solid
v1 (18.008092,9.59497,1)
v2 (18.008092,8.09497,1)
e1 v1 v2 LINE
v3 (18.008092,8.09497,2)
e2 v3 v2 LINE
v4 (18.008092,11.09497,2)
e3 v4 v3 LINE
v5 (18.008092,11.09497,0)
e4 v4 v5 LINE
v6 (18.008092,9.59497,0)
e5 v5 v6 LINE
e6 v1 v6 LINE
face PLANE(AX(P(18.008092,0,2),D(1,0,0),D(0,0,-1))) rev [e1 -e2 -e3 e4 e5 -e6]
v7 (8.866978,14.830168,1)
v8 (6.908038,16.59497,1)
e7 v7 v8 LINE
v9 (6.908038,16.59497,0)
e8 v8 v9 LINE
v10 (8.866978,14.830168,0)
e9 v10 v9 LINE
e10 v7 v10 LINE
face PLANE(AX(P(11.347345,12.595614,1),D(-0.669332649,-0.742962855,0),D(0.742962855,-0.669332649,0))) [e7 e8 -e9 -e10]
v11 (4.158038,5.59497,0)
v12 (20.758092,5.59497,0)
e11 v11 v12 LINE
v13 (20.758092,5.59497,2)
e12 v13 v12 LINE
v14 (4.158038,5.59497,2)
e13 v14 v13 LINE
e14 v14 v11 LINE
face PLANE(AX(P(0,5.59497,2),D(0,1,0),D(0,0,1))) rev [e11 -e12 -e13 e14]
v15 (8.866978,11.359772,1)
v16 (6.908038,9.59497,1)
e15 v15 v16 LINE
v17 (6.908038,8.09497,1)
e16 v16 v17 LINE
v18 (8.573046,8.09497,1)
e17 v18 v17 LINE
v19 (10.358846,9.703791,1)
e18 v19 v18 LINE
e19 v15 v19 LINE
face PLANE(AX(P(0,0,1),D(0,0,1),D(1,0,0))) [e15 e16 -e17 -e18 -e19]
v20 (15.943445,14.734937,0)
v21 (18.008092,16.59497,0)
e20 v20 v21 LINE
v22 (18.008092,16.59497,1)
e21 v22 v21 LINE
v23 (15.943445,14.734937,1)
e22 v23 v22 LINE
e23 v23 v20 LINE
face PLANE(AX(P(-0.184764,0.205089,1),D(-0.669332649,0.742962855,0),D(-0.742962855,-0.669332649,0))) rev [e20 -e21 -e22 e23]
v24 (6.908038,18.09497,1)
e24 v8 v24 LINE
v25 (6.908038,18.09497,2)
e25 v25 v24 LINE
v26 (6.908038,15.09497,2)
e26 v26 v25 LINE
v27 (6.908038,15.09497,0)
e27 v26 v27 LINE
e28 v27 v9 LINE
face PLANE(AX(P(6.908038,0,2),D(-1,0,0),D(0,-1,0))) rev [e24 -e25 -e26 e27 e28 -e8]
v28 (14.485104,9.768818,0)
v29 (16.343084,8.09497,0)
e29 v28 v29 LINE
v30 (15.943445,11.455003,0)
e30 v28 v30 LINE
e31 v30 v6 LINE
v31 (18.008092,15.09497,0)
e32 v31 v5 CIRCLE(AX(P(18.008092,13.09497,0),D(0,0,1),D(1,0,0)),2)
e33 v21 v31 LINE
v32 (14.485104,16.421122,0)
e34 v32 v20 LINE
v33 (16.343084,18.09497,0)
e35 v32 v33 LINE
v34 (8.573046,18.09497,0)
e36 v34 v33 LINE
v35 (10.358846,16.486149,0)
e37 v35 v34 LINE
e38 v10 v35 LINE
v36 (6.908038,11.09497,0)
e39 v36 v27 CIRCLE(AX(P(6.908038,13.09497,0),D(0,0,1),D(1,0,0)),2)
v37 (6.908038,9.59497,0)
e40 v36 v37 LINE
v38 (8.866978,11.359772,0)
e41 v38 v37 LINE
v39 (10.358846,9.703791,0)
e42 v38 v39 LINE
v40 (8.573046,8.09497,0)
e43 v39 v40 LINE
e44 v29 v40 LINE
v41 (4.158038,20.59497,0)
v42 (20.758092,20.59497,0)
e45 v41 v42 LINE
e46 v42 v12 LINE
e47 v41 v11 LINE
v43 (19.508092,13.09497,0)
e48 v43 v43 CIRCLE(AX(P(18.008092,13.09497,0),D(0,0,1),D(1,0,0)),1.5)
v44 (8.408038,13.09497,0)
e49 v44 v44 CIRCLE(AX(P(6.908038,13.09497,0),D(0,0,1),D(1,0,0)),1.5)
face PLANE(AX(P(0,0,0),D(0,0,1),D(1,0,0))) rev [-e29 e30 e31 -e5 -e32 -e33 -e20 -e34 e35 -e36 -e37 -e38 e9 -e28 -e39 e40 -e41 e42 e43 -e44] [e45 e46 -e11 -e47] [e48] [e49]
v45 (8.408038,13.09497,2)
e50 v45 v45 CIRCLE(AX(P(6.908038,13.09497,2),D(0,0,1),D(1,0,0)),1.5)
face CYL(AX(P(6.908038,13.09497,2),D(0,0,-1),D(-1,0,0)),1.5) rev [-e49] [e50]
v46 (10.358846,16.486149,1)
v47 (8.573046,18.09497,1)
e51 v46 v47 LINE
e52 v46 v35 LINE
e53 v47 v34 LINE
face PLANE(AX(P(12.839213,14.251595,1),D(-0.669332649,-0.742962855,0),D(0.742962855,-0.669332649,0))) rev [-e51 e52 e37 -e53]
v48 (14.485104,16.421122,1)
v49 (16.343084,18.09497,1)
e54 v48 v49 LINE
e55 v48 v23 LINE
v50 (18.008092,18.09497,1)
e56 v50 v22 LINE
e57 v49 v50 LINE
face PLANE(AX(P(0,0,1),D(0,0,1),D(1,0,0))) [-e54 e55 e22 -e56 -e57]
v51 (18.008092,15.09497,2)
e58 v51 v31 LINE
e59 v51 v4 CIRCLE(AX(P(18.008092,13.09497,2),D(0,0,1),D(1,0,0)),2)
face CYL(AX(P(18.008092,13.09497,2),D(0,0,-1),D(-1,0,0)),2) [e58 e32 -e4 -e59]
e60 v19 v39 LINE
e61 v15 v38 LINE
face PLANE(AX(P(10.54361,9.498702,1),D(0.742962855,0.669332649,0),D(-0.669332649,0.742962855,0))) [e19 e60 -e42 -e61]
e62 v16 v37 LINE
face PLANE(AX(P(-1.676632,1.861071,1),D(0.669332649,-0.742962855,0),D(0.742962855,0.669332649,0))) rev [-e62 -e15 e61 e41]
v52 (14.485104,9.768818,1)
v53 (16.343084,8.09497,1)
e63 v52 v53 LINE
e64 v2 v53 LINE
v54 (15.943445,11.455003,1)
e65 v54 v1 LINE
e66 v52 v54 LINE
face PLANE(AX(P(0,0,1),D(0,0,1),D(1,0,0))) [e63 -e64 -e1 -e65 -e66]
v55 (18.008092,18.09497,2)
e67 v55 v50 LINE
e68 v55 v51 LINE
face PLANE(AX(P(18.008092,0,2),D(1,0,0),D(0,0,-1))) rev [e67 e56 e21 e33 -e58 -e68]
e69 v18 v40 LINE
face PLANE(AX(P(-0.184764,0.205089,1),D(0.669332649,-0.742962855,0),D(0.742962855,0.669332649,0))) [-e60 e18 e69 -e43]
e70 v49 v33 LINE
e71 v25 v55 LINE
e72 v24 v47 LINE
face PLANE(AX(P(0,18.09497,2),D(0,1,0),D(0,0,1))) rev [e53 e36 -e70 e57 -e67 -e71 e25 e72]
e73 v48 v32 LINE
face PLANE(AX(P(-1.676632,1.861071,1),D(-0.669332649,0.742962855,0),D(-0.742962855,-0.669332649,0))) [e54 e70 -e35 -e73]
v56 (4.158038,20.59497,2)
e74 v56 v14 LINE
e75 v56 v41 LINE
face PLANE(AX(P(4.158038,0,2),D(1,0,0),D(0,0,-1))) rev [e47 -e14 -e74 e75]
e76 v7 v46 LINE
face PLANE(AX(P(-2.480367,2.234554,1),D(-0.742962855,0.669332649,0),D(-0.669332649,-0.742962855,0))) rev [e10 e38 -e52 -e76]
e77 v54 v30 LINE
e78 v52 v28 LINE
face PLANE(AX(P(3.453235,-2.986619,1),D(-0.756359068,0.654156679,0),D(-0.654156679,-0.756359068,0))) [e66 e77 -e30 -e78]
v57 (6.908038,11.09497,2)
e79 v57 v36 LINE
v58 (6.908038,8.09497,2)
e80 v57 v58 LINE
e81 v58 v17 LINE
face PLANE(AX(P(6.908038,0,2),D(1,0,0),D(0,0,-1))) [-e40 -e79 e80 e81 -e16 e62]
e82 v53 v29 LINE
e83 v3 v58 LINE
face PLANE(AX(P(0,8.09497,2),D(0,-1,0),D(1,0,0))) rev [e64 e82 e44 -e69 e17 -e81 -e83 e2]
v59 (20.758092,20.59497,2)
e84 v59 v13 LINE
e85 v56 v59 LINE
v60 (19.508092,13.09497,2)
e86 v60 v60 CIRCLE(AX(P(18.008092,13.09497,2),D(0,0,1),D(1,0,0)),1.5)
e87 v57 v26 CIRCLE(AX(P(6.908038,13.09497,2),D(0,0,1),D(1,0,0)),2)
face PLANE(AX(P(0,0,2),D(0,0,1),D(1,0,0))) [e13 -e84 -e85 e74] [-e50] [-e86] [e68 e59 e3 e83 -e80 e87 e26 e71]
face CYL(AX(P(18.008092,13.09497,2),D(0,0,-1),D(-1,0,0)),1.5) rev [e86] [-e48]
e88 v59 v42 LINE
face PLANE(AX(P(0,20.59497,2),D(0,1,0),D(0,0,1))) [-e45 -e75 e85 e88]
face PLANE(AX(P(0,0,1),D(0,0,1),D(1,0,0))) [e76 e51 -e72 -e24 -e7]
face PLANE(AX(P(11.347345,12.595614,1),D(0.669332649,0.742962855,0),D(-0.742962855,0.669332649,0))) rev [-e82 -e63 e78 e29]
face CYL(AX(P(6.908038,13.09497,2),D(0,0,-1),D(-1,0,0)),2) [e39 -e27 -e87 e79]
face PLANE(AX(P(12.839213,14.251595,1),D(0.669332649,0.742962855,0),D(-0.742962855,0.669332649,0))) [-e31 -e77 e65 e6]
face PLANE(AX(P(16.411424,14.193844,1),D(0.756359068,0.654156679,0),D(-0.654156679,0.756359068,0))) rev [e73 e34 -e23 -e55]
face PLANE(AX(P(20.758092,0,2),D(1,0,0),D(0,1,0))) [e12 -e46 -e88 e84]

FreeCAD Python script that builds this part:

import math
import FreeCAD as App
import Part
import Sketcher

doc = App.newDocument("Part")
body = doc.addObject("PartDesign::Body", "Body")

# Sketch on XY plane
sketch1 = doc.addObject("Sketcher::SketchObject", "Sketch")
body.addObject(sketch1)
sketch1.AttachmentSupport = (doc.XY_Plane, [""])
sketch1.MapMode = "FlatFace"
sketch1.addGeometry([
    Part.LineSegment(App.Vector(4.2, 20.6, 0), App.Vector(4.2, 5.6, 0)),  # 0
    Part.LineSegment(App.Vector(4.2, 5.6, 0), App.Vector(20.8, 5.6, 0)),  # 1
    Part.LineSegment(App.Vector(20.8, 5.6, 0), App.Vector(20.8, 20.6, 0)),  # 2
    Part.LineSegment(App.Vector(20.8, 20.6, 0), App.Vector(4.2, 20.6, 0)),  # 3
    Part.Circle(App.Vector(6.9, 13.1, 0), App.Vector(0, 0, 1), 1.5),  # 4
    Part.LineSegment(App.Vector(6.9, 8.1, 0), App.Vector(6.9, 11.1, 0)),  # 5
    Part.ArcOfCircle(Part.Circle(App.Vector(6.9, 13.1, 0), App.Vector(0, 0, 1), 2), math.radians(-90), math.radians(90)),  # 6
    Part.LineSegment(App.Vector(6.9, 15.1, 0), App.Vector(6.9, 18.1, 0)),  # 7
    Part.LineSegment(App.Vector(6.9, 18.1, 0), App.Vector(18, 18.1, 0)),  # 8
    Part.LineSegment(App.Vector(18, 18.1, 0), App.Vector(18, 15.1, 0)),  # 9
    Part.ArcOfCircle(Part.Circle(App.Vector(18, 13.1, 0), App.Vector(0, 0, 1), 2), math.radians(90), math.radians(270)),  # 10
    Part.LineSegment(App.Vector(18, 11.1, 0), App.Vector(18, 8.1, 0)),  # 11
    Part.LineSegment(App.Vector(18, 8.1, 0), App.Vector(6.9, 8.1, 0)),  # 12
    Part.Circle(App.Vector(18, 13.1, 0), App.Vector(0, 0, 1), 1.5),  # 13
], False)
sketch1.addConstraint([
    Sketcher.Constraint("Coincident", 0, 2, 1, 1),
    Sketcher.Constraint("Coincident", 1, 2, 2, 1),
    Sketcher.Constraint("Coincident", 2, 2, 3, 1),
    Sketcher.Constraint("Coincident", 3, 2, 0, 1),
    Sketcher.Constraint("Coincident", 5, 2, 6, 1),
    Sketcher.Constraint("Coincident", 6, 2, 7, 1),
    Sketcher.Constraint("Coincident", 7, 2, 8, 1),
    Sketcher.Constraint("Coincident", 8, 2, 9, 1),
    Sketcher.Constraint("Coincident", 9, 2, 10, 1),
    Sketcher.Constraint("Coincident", 10, 2, 11, 1),
    Sketcher.Constraint("Coincident", 11, 2, 12, 1),
    Sketcher.Constraint("Coincident", 12, 2, 5, 1),
    Sketcher.Constraint("Vertical", 0),
    Sketcher.Constraint("Horizontal", 1),
    Sketcher.Constraint("Vertical", 2),
    Sketcher.Constraint("Horizontal", 3),
    Sketcher.Constraint("Vertical", 5),
    Sketcher.Constraint("Vertical", 7),
    Sketcher.Constraint("Horizontal", 8),
    Sketcher.Constraint("Vertical", 9),
    Sketcher.Constraint("Vertical", 11),
    Sketcher.Constraint("Horizontal", 12),
    Sketcher.Constraint("Coincident", 6, 3, 4, 3),
    Sketcher.Constraint("Coincident", 13, 3, 10, 3),
    Sketcher.Constraint("Equal", 6, 10),
    Sketcher.Constraint("Equal", 4, 13),
    Sketcher.Constraint("Horizontal", 6, 3, 10, 3),
    Sketcher.Constraint("Vertical", 6, 3, 5, 2),
    Sketcher.Constraint("Vertical", 5, 2, 6, 2),
    Sketcher.Constraint("Vertical", 13, 3, 8, 2),
    Sketcher.Constraint("Vertical", 9, 2, 10, 2),
    Sketcher.Constraint("Equal", 5, 7),
    Sketcher.Constraint("Diameter", 4, 3.0),
    Sketcher.Constraint("Radius", 6, 2.0),
    Sketcher.Constraint("DistanceY", 0, 2, 0, 1, 15.0),
    Sketcher.Constraint("DistanceY", 5, 1, 5, 2, 3.0),
    Sketcher.Constraint("DistanceY", 0, 2, 4, 3, 7.5),
    Sketcher.Constraint("DistanceX", 0, 2, 4, 3, 2.75),
    Sketcher.Constraint("DistanceX", 10, 3, 1, 2, 2.75),
    Sketcher.Constraint("DistanceX", 1, 1, 1, 2, 16.600054),
    Sketcher.Constraint("DistanceX", -1, 1, 4, 3, 6.908038),
    Sketcher.Constraint("DistanceY", -1, 1, 4, 3, 13.09497),
])
pad1 = doc.addObject("PartDesign::Pad", "Pad")
body.addObject(pad1)
pad1.Profile = sketch1
pad1.Length = 2

# Sketch on XY plane
sketch2 = doc.addObject("Sketcher::SketchObject", "Sketch001")
body.addObject(sketch2)
sketch2.AttachmentSupport = (doc.XY_Plane, [""])
sketch2.MapMode = "FlatFace"
sketch2.addGeometry([
    Part.LineSegment(App.Vector(6.908038, 18.09497, 0), App.Vector(6.908038, 16.59497, 0)),  # 0
    Part.LineSegment(App.Vector(6.908038, 16.59497, 0), App.Vector(8.866978, 14.830168, 0)),  # 1
    Part.LineSegment(App.Vector(8.866978, 14.830168, 0), App.Vector(10.358846, 16.486149, 0)),  # 2
    Part.LineSegment(App.Vector(10.358846, 16.486149, 0), App.Vector(8.573046, 18.09497, 0)),  # 3
    Part.LineSegment(App.Vector(8.573046, 18.09497, 0), App.Vector(6.908038, 18.09497, 0)),  # 4
    Part.LineSegment(App.Vector(18.008092, 18.09497, 0), App.Vector(16.343084, 18.09497, 0)),  # 5
    Part.LineSegment(App.Vector(16.343084, 18.09497, 0), App.Vector(14.485104, 16.421122, 0)),  # 6
    Part.LineSegment(App.Vector(14.485104, 16.421122, 0), App.Vector(15.943445, 14.734937, 0)),  # 7
    Part.LineSegment(App.Vector(15.943445, 14.734937, 0), App.Vector(18.008092, 16.59497, 0)),  # 8
    Part.LineSegment(App.Vector(18.008092, 16.59497, 0), App.Vector(18.008092, 18.09497, 0)),  # 9
    Part.LineSegment(App.Vector(14.485104, 9.768818, 0), App.Vector(16.343084, 8.09497, 0)),  # 10
    Part.LineSegment(App.Vector(16.343084, 8.09497, 0), App.Vector(18.008092, 8.09497, 0)),  # 11
    Part.LineSegment(App.Vector(18.008092, 8.09497, 0), App.Vector(18.008092, 9.59497, 0)),  # 12
    Part.LineSegment(App.Vector(18.008092, 9.59497, 0), App.Vector(15.943445, 11.455003, 0)),  # 13
    Part.LineSegment(App.Vector(15.943445, 11.455003, 0), App.Vector(14.485104, 9.768818, 0)),  # 14
    Part.LineSegment(App.Vector(8.866978, 11.359772, 0), App.Vector(6.908038, 9.59497, 0)),  # 15
    Part.LineSegment(App.Vector(6.908038, 9.59497, 0), App.Vector(6.908038, 8.09497, 0)),  # 16
    Part.LineSegment(App.Vector(6.908038, 8.09497, 0), App.Vector(8.573046, 8.09497, 0)),  # 17
    Part.LineSegment(App.Vector(8.573046, 8.09497, 0), App.Vector(10.358846, 9.703791, 0)),  # 18
    Part.LineSegment(App.Vector(10.358846, 9.703791, 0), App.Vector(8.866978, 11.359772, 0)),  # 19
], False)
sketch2.addConstraint([
    Sketcher.Constraint("Coincident", 0, 2, 1, 1),
    Sketcher.Constraint("Coincident", 1, 2, 2, 1),
    Sketcher.Constraint("Coincident", 2, 2, 3, 1),
    Sketcher.Constraint("Coincident", 3, 2, 4, 1),
    Sketcher.Constraint("Coincident", 4, 2, 0, 1),
    Sketcher.Constraint("Coincident", 5, 2, 6, 1),
    Sketcher.Constraint("Coincident", 6, 2, 7, 1),
    Sketcher.Constraint("Coincident", 7, 2, 8, 1),
    Sketcher.Constraint("Coincident", 8, 2, 9, 1),
    Sketcher.Constraint("Coincident", 9, 2, 5, 1),
    Sketcher.Constraint("Coincident", 10, 2, 11, 1),
    Sketcher.Constraint("Coincident", 11, 2, 12, 1),
    Sketcher.Constraint("Coincident", 12, 2, 13, 1),
    Sketcher.Constraint("Coincident", 13, 2, 14, 1),
    Sketcher.Constraint("Coincident", 14, 2, 10, 1),
    Sketcher.Constraint("Coincident", 15, 2, 16, 1),
    Sketcher.Constraint("Coincident", 16, 2, 17, 1),
    Sketcher.Constraint("Coincident", 17, 2, 18, 1),
    Sketcher.Constraint("Coincident", 18, 2, 19, 1),
    Sketcher.Constraint("Coincident", 19, 2, 15, 1),
    Sketcher.Constraint("Vertical", 0),
    Sketcher.Constraint("Horizontal", 4),
    Sketcher.Constraint("Horizontal", 5),
    Sketcher.Constraint("Vertical", 9),
    Sketcher.Constraint("Horizontal", 11),
    Sketcher.Constraint("Vertical", 12),
    Sketcher.Constraint("Vertical", 16),
    Sketcher.Constraint("Horizontal", 17),
    Sketcher.Constraint("DistanceY", 0, 2, 0, 1, 1.5),
    Sketcher.Constraint("DistanceY", 9, 1, 9, 2, 1.5),
    Sketcher.Constraint("DistanceY", 12, 1, 12, 2, 1.5),
    Sketcher.Constraint("DistanceY", 16, 2, 16, 1, 1.5),
    Sketcher.Constraint("DistanceY", 10, 2, 5, 2, 10.0),
    Sketcher.Constraint("DistanceY", 15, 2, 0, 2, 7.0),
    Sketcher.Constraint("DistanceY", 0, 2, 5, 2, 1.5),
    Sketcher.Constraint("DistanceX", 4, 2, 4, 1, 1.665008),
    Sketcher.Constraint("DistanceX", 5, 2, 5, 1, 1.665008),
    Sketcher.Constraint("DistanceX", 11, 1, 11, 2, 1.665008),
    Sketcher.Constraint("DistanceX", 17, 1, 17, 2, 1.665008),
    Sketcher.Constraint("DistanceX", 3, 2, 2, 2, 1.7858),
    Sketcher.Constraint("DistanceX", 2, 2, 7, 2, 5.584599),
    Sketcher.Constraint("DistanceX", 17, 2, 18, 2, 1.7858),
    Sketcher.Constraint("Distance", 1, 2.636659),
    Sketcher.Constraint("Distance", 2, 2.228889),
    Sketcher.Constraint("Distance", 3, 2.403619),
    Sketcher.Constraint("Distance", 6, 2.500771),
    Sketcher.Constraint("Distance", 10, 2.500771),
    Sketcher.Constraint("Distance", 15, 2.636659),
    Sketcher.Constraint("Distance", 18, 2.403619),
    Sketcher.Constraint("Distance", 19, 2.228889),
    Sketcher.Constraint("DistanceX", -1, 1, 0, 2, 6.908038),
    Sketcher.Constraint("DistanceY", -1, 1, 0, 2, 16.59497),
    Sketcher.Constraint("DistanceX", -1, 1, 15, 2, 6.908038),
    Sketcher.Constraint("DistanceX", 2, 2, 5, 2, 5.984238),
    Sketcher.Constraint("DistanceX", 6, 2, 5, 2, 1.85798),
    Sketcher.Constraint("DistanceY", 7, 2, 1, 2, 0.095231),
    Sketcher.Constraint("DistanceX", 7, 2, 10, 2, 0.399639),
    Sketcher.Constraint("DistanceX", 13, 2, 10, 2, 0.399639),
    Sketcher.Constraint("DistanceY", 13, 2, 6, 2, 4.966119),
    Sketcher.Constraint("DistanceX", 14, 2, 13, 2, 1.458341),
])
pad2 = doc.addObject("PartDesign::Pad", "Pad001")
body.addObject(pad2)
pad2.Profile = sketch2
pad2.Length = 1

doc.recompute()
